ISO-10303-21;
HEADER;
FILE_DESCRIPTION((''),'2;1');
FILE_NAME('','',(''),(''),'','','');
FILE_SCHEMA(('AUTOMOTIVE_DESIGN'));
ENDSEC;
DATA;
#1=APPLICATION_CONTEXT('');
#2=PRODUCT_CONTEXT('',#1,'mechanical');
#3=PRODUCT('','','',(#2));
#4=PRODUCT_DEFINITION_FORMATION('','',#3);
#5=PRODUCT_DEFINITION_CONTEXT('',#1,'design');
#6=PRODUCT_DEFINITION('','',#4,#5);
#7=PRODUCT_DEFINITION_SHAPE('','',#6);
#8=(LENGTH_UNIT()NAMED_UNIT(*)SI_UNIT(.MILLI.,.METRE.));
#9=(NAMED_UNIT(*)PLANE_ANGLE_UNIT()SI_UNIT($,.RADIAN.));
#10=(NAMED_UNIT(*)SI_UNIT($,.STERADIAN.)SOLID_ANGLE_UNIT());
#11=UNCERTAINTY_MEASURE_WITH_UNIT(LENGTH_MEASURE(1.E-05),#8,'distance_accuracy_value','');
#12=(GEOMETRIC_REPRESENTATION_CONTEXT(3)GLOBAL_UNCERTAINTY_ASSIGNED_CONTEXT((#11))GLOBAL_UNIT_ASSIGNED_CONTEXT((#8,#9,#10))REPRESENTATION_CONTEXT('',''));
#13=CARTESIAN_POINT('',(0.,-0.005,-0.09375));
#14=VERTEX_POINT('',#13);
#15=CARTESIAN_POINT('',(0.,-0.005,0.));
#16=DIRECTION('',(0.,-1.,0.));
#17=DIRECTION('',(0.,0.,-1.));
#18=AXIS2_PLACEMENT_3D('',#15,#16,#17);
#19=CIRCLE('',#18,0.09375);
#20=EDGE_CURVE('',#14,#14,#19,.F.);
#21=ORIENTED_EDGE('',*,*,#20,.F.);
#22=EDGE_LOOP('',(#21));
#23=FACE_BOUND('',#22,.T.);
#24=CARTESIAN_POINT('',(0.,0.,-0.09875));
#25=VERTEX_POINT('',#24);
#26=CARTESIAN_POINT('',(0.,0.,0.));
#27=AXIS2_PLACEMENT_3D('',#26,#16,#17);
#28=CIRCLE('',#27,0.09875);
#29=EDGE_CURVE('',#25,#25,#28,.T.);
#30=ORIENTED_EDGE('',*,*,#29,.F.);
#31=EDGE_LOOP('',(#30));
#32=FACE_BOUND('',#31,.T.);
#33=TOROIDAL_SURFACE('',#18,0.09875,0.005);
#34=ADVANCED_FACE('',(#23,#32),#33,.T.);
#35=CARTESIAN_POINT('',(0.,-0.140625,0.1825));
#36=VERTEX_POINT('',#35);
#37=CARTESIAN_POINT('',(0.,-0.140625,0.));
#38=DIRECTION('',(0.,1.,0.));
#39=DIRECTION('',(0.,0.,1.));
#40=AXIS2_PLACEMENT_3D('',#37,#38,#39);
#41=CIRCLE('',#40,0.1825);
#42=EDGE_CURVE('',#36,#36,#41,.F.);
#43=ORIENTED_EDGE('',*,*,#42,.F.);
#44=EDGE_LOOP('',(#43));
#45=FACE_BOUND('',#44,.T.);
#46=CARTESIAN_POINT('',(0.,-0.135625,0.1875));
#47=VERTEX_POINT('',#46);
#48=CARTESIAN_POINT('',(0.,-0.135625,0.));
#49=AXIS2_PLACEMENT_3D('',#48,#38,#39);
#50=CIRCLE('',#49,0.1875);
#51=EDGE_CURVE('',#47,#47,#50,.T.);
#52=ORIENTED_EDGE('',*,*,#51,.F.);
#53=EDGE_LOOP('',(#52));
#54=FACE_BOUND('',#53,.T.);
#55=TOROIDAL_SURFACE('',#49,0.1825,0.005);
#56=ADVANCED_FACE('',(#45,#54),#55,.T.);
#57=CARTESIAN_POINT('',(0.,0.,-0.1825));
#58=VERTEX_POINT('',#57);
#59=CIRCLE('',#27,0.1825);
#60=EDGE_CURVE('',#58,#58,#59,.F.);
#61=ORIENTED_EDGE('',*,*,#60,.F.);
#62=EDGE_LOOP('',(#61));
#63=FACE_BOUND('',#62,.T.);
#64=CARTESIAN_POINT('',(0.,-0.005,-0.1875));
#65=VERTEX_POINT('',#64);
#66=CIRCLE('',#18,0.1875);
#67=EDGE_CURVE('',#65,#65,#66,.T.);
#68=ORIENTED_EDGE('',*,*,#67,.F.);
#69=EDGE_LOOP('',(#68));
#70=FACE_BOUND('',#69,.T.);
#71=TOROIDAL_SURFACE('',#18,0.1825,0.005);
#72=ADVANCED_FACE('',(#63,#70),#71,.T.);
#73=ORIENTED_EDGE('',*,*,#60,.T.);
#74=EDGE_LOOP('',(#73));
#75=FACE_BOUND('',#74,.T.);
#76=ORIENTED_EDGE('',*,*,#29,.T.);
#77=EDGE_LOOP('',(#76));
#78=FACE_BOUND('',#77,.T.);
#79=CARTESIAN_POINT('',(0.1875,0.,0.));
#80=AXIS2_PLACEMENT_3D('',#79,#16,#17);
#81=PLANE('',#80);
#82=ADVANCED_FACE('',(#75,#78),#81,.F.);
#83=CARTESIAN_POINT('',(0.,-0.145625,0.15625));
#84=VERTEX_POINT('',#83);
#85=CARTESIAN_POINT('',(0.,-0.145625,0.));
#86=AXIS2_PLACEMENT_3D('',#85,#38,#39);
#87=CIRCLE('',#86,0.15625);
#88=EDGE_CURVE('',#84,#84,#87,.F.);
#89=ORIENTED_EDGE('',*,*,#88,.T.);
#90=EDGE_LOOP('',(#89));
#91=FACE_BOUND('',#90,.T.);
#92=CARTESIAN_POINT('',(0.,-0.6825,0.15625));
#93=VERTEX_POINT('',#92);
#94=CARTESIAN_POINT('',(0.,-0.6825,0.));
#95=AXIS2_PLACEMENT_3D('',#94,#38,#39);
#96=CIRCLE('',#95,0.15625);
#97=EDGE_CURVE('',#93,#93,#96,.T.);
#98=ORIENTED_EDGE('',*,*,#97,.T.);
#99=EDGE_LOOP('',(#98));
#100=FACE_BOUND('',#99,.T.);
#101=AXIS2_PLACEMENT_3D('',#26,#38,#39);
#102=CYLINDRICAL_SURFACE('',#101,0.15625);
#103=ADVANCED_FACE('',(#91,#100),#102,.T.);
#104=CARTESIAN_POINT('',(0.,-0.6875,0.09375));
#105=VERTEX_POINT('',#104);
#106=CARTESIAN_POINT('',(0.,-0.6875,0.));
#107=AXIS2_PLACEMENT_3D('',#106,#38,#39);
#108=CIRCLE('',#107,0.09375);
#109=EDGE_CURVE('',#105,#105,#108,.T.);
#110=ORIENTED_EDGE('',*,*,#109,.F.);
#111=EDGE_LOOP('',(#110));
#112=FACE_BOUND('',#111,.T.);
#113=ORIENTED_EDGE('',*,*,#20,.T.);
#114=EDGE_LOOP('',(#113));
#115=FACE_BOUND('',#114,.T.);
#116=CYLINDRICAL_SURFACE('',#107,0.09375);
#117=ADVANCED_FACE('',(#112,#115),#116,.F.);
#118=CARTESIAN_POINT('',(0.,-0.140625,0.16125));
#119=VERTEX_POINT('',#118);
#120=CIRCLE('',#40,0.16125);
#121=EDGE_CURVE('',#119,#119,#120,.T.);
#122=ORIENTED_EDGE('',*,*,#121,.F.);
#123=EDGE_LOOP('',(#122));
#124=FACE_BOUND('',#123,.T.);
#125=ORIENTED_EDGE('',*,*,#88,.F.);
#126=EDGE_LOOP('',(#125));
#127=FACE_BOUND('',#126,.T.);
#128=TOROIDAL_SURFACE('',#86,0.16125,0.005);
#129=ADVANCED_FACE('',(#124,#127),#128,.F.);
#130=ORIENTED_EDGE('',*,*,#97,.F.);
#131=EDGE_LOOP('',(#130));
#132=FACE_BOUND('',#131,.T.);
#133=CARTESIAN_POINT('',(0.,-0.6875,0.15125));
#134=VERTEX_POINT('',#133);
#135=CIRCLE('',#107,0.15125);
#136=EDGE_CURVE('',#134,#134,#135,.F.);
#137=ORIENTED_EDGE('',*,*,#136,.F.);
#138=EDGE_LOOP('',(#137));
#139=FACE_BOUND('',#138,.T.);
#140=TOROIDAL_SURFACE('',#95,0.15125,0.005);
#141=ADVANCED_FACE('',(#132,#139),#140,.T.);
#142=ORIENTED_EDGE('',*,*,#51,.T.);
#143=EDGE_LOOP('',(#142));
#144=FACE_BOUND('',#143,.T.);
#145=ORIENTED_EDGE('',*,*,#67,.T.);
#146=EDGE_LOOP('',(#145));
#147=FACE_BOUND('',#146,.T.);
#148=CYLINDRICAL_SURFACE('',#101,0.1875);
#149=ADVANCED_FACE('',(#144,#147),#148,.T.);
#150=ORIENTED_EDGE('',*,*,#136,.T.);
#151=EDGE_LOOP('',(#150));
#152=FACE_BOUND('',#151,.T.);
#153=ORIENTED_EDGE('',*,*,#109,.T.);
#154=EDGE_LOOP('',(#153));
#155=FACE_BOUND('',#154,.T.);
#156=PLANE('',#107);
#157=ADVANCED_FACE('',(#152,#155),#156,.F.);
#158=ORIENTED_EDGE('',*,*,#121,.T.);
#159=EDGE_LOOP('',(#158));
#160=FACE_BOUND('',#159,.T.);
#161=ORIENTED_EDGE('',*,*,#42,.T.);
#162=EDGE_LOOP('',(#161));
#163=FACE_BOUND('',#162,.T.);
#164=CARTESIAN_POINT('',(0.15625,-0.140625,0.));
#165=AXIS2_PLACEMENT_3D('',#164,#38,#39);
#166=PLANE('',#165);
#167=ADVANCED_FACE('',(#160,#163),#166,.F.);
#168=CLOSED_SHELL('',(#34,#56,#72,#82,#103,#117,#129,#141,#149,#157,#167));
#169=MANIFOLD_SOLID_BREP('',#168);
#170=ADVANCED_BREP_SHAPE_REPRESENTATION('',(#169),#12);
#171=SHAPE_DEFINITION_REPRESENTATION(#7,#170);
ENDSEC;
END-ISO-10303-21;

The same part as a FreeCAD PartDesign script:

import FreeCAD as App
import Part
import Sketcher


def edges_at(feature, points):
    """Names of the edges that pass closest to the given points."""
    edges = feature.Shape.Edges
    near = lambda p: min(range(len(edges)), key=lambda i: edges[i].distToShape(Part.Vertex(*p))[0])
    return sorted({f"Edge{near(p) + 1}" for p in points})


def add_polygon(sketch, points):
    """Adds a closed chain of lines whose ends are joined by coincident constraints."""
    first, n = sketch.GeometryCount, len(points)
    for a, b in zip(points, points[1:] + points[:1]):
        sketch.addGeometry(Part.LineSegment(App.Vector(*a, 0), App.Vector(*b, 0)), False)
    for i in range(n):
        sketch.addConstraint(Sketcher.Constraint("Coincident", first + i, 2, first + (i + 1) % n, 1))

doc = App.newDocument("Part")
body = doc.addObject("PartDesign::Body", "Body")

sketch1 = body.newObject("Sketcher::SketchObject", "Sketch")
sketch1.AttachmentSupport = (doc.getObject("XY_Plane"), [""])
sketch1.MapMode = "FlatFace"
add_polygon(sketch1, [(0, -0.688), (0.156, -0.688), (0.156, -0.141), (0.188, -0.141), (0.188, 0), (0, 0)])
sketch1.addConstraint([
    Sketcher.Constraint("Horizontal", 0),
    Sketcher.Constraint("Vertical", 1),
    Sketcher.Constraint("Horizontal", 2),
    Sketcher.Constraint("Vertical", 3),
    Sketcher.Constraint("Horizontal", 4),
    Sketcher.Constraint("Vertical", 5),
    Sketcher.Constraint("Coincident", 4, 2, -1, 1),
    Sketcher.Constraint("DistanceX", 4, 2, 4, 1, 0.1875),
    Sketcher.Constraint("DistanceY", 5, 2, 5, 1, 0.6875),
    Sketcher.Constraint("DistanceX", 0, 1, 0, 2, 0.15625),
    Sketcher.Constraint("DistanceY", 1, 1, 1, 2, 0.546875),
])
revolution = body.newObject("PartDesign::Revolution", "Revolution")
revolution.Profile = sketch1
revolution.ReferenceAxis = (sketch1, ["V_Axis"])
revolution.Angle = 360

sketch2 = body.newObject("Sketcher::SketchObject", "Sketch001")
sketch2.AttachmentSupport = (doc.getObject("XZ_Plane"), [""])
sketch2.MapMode = "FlatFace"
sketch2.addGeometry(Part.Circle(App.Vector(0, 0, 0), App.Vector(0, 0, 1), 0.09), False)
sketch2.addConstraint([
    Sketcher.Constraint("Coincident", 0, 3, -1, 1),
    Sketcher.Constraint("Diameter", 0, 0.1875),
])
pocket1 = body.newObject("PartDesign::Pocket", "Pocket")
pocket1.Profile = sketch2
pocket1.Type = "ThroughAll"
pocket1.Reversed = True
doc.recompute()

fillet = body.newObject("PartDesign::Fillet", "Fillet")
fillet.Base = (pocket1, edges_at(pocket1, [
    (0, 0, -0.094),
    (0, 0, -0.188),
    (0, -0.141, -0.188),
    (0, -0.141, -0.156),
    (0, -0.688, -0.156),
]))
fillet.Radius = 0.005

doc.recompute()
